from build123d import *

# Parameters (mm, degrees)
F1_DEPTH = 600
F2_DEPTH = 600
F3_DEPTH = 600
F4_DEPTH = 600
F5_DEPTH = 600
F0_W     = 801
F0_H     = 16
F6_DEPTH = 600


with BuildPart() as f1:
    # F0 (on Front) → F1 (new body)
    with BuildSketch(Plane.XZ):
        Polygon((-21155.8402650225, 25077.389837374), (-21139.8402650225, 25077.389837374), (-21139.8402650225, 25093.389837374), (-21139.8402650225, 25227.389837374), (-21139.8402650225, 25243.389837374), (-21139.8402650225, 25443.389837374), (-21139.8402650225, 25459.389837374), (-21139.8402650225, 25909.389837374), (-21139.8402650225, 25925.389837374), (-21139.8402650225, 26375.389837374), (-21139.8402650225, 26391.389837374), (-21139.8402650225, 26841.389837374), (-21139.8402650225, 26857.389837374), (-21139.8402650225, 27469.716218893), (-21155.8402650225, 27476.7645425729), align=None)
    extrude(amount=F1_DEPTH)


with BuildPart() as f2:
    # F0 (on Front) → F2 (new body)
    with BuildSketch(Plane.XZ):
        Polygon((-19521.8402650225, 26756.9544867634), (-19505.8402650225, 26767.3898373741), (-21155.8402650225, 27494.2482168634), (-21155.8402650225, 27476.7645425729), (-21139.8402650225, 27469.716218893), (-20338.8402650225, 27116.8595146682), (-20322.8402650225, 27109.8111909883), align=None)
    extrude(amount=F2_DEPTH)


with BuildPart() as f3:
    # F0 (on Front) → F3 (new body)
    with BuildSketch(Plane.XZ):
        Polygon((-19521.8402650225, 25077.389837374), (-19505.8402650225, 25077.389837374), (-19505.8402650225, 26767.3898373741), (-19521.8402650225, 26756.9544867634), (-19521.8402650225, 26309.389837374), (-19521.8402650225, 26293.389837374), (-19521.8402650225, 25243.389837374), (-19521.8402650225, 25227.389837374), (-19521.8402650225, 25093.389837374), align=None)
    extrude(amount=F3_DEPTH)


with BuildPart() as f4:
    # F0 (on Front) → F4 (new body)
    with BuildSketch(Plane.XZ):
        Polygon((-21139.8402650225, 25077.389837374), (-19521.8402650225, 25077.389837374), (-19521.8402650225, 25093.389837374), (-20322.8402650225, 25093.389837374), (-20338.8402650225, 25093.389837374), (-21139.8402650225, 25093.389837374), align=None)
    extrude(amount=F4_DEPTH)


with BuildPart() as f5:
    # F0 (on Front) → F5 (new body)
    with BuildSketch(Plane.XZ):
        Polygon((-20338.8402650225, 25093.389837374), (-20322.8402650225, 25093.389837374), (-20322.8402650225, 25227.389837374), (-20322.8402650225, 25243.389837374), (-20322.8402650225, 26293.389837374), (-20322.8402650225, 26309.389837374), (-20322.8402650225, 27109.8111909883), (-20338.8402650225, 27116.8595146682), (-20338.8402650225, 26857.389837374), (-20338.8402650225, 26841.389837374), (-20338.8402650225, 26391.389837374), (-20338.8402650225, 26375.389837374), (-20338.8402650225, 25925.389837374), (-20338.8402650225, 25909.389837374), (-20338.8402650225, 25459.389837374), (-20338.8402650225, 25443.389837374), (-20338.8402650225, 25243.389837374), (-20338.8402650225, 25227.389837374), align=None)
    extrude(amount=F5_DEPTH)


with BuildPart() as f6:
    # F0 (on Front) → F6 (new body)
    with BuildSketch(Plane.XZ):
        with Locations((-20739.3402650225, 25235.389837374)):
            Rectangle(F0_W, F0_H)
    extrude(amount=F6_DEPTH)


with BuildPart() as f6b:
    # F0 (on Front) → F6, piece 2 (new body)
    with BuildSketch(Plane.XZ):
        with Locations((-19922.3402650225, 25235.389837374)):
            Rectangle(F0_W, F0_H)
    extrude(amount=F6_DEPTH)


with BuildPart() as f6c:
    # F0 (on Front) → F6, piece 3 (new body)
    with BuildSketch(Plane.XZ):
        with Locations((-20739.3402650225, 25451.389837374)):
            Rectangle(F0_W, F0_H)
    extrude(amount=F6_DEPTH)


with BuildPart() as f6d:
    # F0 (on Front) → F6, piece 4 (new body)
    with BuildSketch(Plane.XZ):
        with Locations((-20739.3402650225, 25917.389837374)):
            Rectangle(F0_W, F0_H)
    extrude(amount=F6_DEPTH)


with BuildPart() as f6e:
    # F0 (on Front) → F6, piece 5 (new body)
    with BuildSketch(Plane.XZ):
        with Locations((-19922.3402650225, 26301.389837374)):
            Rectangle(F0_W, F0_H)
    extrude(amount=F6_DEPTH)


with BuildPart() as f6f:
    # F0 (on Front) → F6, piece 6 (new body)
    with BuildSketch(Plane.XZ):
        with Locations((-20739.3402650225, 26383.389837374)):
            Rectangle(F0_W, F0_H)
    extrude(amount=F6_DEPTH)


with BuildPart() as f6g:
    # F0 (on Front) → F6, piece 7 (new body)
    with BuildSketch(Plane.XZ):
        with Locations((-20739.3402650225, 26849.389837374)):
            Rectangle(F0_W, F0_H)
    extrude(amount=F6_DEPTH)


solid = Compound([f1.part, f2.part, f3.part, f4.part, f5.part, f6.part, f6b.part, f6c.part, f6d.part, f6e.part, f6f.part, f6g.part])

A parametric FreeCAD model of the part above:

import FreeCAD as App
import Part
import Sketcher
Q = App.Units.Quantity

doc = App.newDocument("Part")
body = doc.addObject("PartDesign::Body", "Body")

sketch1 = body.newObject("Sketcher::SketchObject", "Sketch")
sketch1.AttachmentSupport = (doc.getObject("XZ_Plane"), [""])
sketch1.MapMode = "FlatFace"
sketch1.addGeometry([
    Part.LineSegment(App.Vector(-21156, 25077, 0), App.Vector(-21140, 25077, 0)),
    Part.LineSegment(App.Vector(-21140, 25077, 0), App.Vector(-21140, 27470, 0)),
    Part.LineSegment(App.Vector(-21140, 27470, 0), App.Vector(-21156, 27477, 0)),
    Part.LineSegment(App.Vector(-21156, 27477, 0), App.Vector(-21156, 25077, 0)),
], False)
sketch1.addConstraint([
    Sketcher.Constraint("Coincident", 0, 2, 1, 1),
    Sketcher.Constraint("Coincident", 1, 2, 2, 1),
    Sketcher.Constraint("Coincident", 2, 2, 3, 1),
    Sketcher.Constraint("Coincident", 3, 2, 0, 1),
    Sketcher.Constraint("Horizontal", 0),
    Sketcher.Constraint("Vertical", 1),
    Sketcher.Constraint("Vertical", 3),
    Sketcher.Constraint("DistanceX", 0, 1, 0, 2, Q("16 mm")),
    Sketcher.Constraint("DistanceY", 1, 1, 1, 2, Q("2392.326382 mm")),
    Sketcher.Constraint("DistanceY", 3, 2, 3, 1, Q("2399.374705 mm")),
    Sketcher.Constraint("DistanceY", -1, 1, 1, 2, Q("27469.716219 mm")),
    Sketcher.Constraint("DistanceX", 0, 2, -1, 1, Q("21139.840265 mm")),
])
pad1 = body.newObject("PartDesign::Pad", "Pad")
pad1.Profile = sketch1
pad1.Length = 600
body2 = doc.addObject("PartDesign::Body", "Body001")

sketch2 = body2.newObject("Sketcher::SketchObject", "Sketch001")
sketch2.AttachmentSupport = (doc.getObject("XZ_Plane001"), [""])
sketch2.MapMode = "FlatFace"
sketch2.addGeometry([
    Part.LineSegment(App.Vector(-19522, 26757, 0), App.Vector(-19506, 26767, 0)),
    Part.LineSegment(App.Vector(-19506, 26767, 0), App.Vector(-21156, 27494, 0)),
    Part.LineSegment(App.Vector(-21156, 27494, 0), App.Vector(-21156, 27477, 0)),
    Part.LineSegment(App.Vector(-21156, 27477, 0), App.Vector(-19522, 26757, 0)),
], False)
sketch2.addConstraint([
    Sketcher.Constraint("Coincident", 0, 2, 1, 1),
    Sketcher.Constraint("Coincident", 1, 2, 2, 1),
    Sketcher.Constraint("Coincident", 2, 2, 3, 1),
    Sketcher.Constraint("Coincident", 3, 2, 0, 1),
    Sketcher.Constraint("Vertical", 2),
    Sketcher.Constraint("Parallel", 1, 3),
    Sketcher.Constraint("DistanceX", 1, 2, 0, 2, Q("1650 mm")),
    Sketcher.Constraint("DistanceX", 3, 2, 0, 2, Q("16 mm")),
    Sketcher.Constraint("Distance", 1, Q("1803.003911 mm")),
    Sketcher.Constraint("DistanceY", 2, 2, 2, 1, Q("17.483674 mm")),
    Sketcher.Constraint("DistanceX", 0, 2, -1, 1, Q("19505.840265 mm")),
    Sketcher.Constraint("DistanceY", -1, 1, 0, 2, Q("26767.389837 mm")),
])
pad2 = body2.newObject("PartDesign::Pad", "Pad001")
pad2.Profile = sketch2
pad2.Length = 600
body3 = doc.addObject("PartDesign::Body", "Body002")

sketch3 = body3.newObject("Sketcher::SketchObject", "Sketch002")
sketch3.AttachmentSupport = (doc.getObject("XZ_Plane002"), [""])
sketch3.MapMode = "FlatFace"
sketch3.addGeometry([
    Part.LineSegment(App.Vector(-19522, 25077, 0), App.Vector(-19506, 25077, 0)),
    Part.LineSegment(App.Vector(-19506, 25077, 0), App.Vector(-19506, 26767, 0)),
    Part.LineSegment(App.Vector(-19506, 26767, 0), App.Vector(-19522, 26757, 0)),
    Part.LineSegment(App.Vector(-19522, 26757, 0), App.Vector(-19522, 25077, 0)),
], False)
sketch3.addConstraint([
    Sketcher.Constraint("Coincident", 0, 2, 1, 1),
    Sketcher.Constraint("Coincident", 1, 2, 2, 1),
    Sketcher.Constraint("Coincident", 2, 2, 3, 1),
    Sketcher.Constraint("Coincident", 3, 2, 0, 1),
    Sketcher.Constraint("Horizontal", 0),
    Sketcher.Constraint("Vertical", 1),
    Sketcher.Constraint("Vertical", 3),
    Sketcher.Constraint("DistanceX", 0, 1, 0, 2, Q("16 mm")),
    Sketcher.Constraint("DistanceY", 1, 1, 1, 2, Q("1690 mm")),
    Sketcher.Constraint("DistanceY", 3, 2, 3, 1, Q("1679.564649 mm")),
    Sketcher.Constraint("DistanceX", 0, 2, -1, 1, Q("19505.840265 mm")),
    Sketcher.Constraint("DistanceY", -1, 1, 0, 2, Q("25077.389837 mm")),
])
pad3 = body3.newObject("PartDesign::Pad", "Pad002")
pad3.Profile = sketch3
pad3.Length = 600
body4 = doc.addObject("PartDesign::Body", "Body003")

sketch4 = body4.newObject("Sketcher::SketchObject", "Sketch003")
sketch4.AttachmentSupport = (doc.getObject("XZ_Plane003"), [""])
sketch4.MapMode = "FlatFace"
sketch4.addGeometry([
    Part.LineSegment(App.Vector(-21140, 25077, 0), App.Vector(-19522, 25077, 0)),
    Part.LineSegment(App.Vector(-19522, 25077, 0), App.Vector(-19522, 25093, 0)),
    Part.LineSegment(App.Vector(-19522, 25093, 0), App.Vector(-21140, 25093, 0)),
    Part.LineSegment(App.Vector(-21140, 25093, 0), App.Vector(-21140, 25077, 0)),
], False)
sketch4.addConstraint([
    Sketcher.Constraint("Coincident", 0, 2, 1, 1),
    Sketcher.Constraint("Coincident", 1, 2, 2, 1),
    Sketcher.Constraint("Coincident", 2, 2, 3, 1),
    Sketcher.Constraint("Coincident", 3, 2, 0, 1),
    Sketcher.Constraint("Horizontal", 0),
    Sketcher.Constraint("Vertical", 1),
    Sketcher.Constraint("Horizontal", 2),
    Sketcher.Constraint("Vertical", 3),
    Sketcher.Constraint("DistanceX", 0, 1, 0, 2, Q("1618 mm")),
    Sketcher.Constraint("DistanceY", 1, 1, 1, 2, Q("16 mm")),
    Sketcher.Constraint("DistanceX", 0, 2, -1, 1, Q("19521.840265 mm")),
    Sketcher.Constraint("DistanceY", -1, 1, 0, 2, Q("25077.389837 mm")),
])
pad4 = body4.newObject("PartDesign::Pad", "Pad003")
pad4.Profile = sketch4
pad4.Length = 600
body5 = doc.addObject("PartDesign::Body", "Body004")

sketch5 = body5.newObject("Sketcher::SketchObject", "Sketch004")
sketch5.AttachmentSupport = (doc.getObject("XZ_Plane004"), [""])
sketch5.MapMode = "FlatFace"
sketch5.addGeometry([
    Part.LineSegment(App.Vector(-20339, 25093, 0), App.Vector(-20323, 25093, 0)),
    Part.LineSegment(App.Vector(-20323, 25093, 0), App.Vector(-20323, 27110, 0)),
    Part.LineSegment(App.Vector(-20323, 27110, 0), App.Vector(-20339, 27117, 0)),
    Part.LineSegment(App.Vector(-20339, 27117, 0), App.Vector(-20339, 25093, 0)),
], False)
sketch5.addConstraint([
    Sketcher.Constraint("Coincident", 0, 2, 1, 1),
    Sketcher.Constraint("Coincident", 1, 2, 2, 1),
    Sketcher.Constraint("Coincident", 2, 2, 3, 1),
    Sketcher.Constraint("Coincident", 3, 2, 0, 1),
    Sketcher.Constraint("Horizontal", 0),
    Sketcher.Constraint("Vertical", 1),
    Sketcher.Constraint("Vertical", 3),
    Sketcher.Constraint("DistanceX", 0, 1, 0, 2, Q("16 mm")),
    Sketcher.Constraint("DistanceY", 1, 1, 1, 2, Q("2016.421354 mm")),
    Sketcher.Constraint("DistanceY", 3, 2, 3, 1, Q("2023.469677 mm")),
    Sketcher.Constraint("DistanceY", -1, 1, 1, 2, Q("27109.811191 mm")),
    Sketcher.Constraint("DistanceX", 0, 2, -1, 1, Q("20322.840265 mm")),
])
pad5 = body5.newObject("PartDesign::Pad", "Pad004")
pad5.Profile = sketch5
pad5.Length = 600
body6 = doc.addObject("PartDesign::Body", "Body005")

sketch6 = body6.newObject("Sketcher::SketchObject", "Sketch005")
sketch6.AttachmentSupport = (doc.getObject("XZ_Plane005"), [""])
sketch6.MapMode = "FlatFace"
sketch6.addGeometry([
    Part.LineSegment(App.Vector(-21140, 25243, 0), App.Vector(-21140, 25227, 0)),
    Part.LineSegment(App.Vector(-21140, 25227, 0), App.Vector(-20339, 25227, 0)),
    Part.LineSegment(App.Vector(-20339, 25227, 0), App.Vector(-20339, 25243, 0)),
    Part.LineSegment(App.Vector(-20339, 25243, 0), App.Vector(-21140, 25243, 0)),
], False)
sketch6.addConstraint([
    Sketcher.Constraint("Coincident", 0, 2, 1, 1),
    Sketcher.Constraint("Coincident", 1, 2, 2, 1),
    Sketcher.Constraint("Coincident", 2, 2, 3, 1),
    Sketcher.Constraint("Coincident", 3, 2, 0, 1),
    Sketcher.Constraint("Vertical", 0),
    Sketcher.Constraint("Horizontal", 1),
    Sketcher.Constraint("Vertical", 2),
    Sketcher.Constraint("Horizontal", 3),
    Sketcher.Constraint("DistanceX", 1, 1, 1, 2, Q("801 mm")),
    Sketcher.Constraint("DistanceY", 0, 2, 0, 1, Q("16 mm")),
    Sketcher.Constraint("DistanceX", 0, 2, -1, 1, Q("21139.840265 mm")),
    Sketcher.Constraint("DistanceY", -1, 1, 0, 2, Q("25227.389837 mm")),
])
pad6 = body6.newObject("PartDesign::Pad", "Pad005")
pad6.Profile = sketch6
pad6.Length = 600
body7 = doc.addObject("PartDesign::Body", "Body006")

sketch7 = body7.newObject("Sketcher::SketchObject", "Sketch006")
sketch7.AttachmentSupport = (doc.getObject("XZ_Plane006"), [""])
sketch7.MapMode = "FlatFace"
sketch7.addGeometry([
    Part.LineSegment(App.Vector(-20323, 25243, 0), App.Vector(-20323, 25227, 0)),
    Part.LineSegment(App.Vector(-20323, 25227, 0), App.Vector(-19522, 25227, 0)),
    Part.LineSegment(App.Vector(-19522, 25227, 0), App.Vector(-19522, 25243, 0)),
    Part.LineSegment(App.Vector(-19522, 25243, 0), App.Vector(-20323, 25243, 0)),
], False)
sketch7.addConstraint([
    Sketcher.Constraint("Coincident", 0, 2, 1, 1),
    Sketcher.Constraint("Coincident", 1, 2, 2, 1),
    Sketcher.Constraint("Coincident", 2, 2, 3, 1),
    Sketcher.Constraint("Coincident", 3, 2, 0, 1),
    Sketcher.Constraint("Vertical", 0),
    Sketcher.Constraint("Horizontal", 1),
    Sketcher.Constraint("Vertical", 2),
    Sketcher.Constraint("Horizontal", 3),
    Sketcher.Constraint("DistanceX", 1, 1, 1, 2, Q("801 mm")),
    Sketcher.Constraint("DistanceY", 0, 2, 0, 1, Q("16 mm")),
    Sketcher.Constraint("DistanceX", 0, 2, -1, 1, Q("20322.840265 mm")),
    Sketcher.Constraint("DistanceY", -1, 1, 0, 2, Q("25227.389837 mm")),
])
pad7 = body7.newObject("PartDesign::Pad", "Pad006")
pad7.Profile = sketch7
pad7.Length = 600
body8 = doc.addObject("PartDesign::Body", "Body007")

sketch8 = body8.newObject("Sketcher::SketchObject", "Sketch007")
sketch8.AttachmentSupport = (doc.getObject("XZ_Plane007"), [""])
sketch8.MapMode = "FlatFace"
sketch8.addGeometry([
    Part.LineSegment(App.Vector(-21140, 25459, 0), App.Vector(-21140, 25443, 0)),
    Part.LineSegment(App.Vector(-21140, 25443, 0), App.Vector(-20339, 25443, 0)),
    Part.LineSegment(App.Vector(-20339, 25443, 0), App.Vector(-20339, 25459, 0)),
    Part.LineSegment(App.Vector(-20339, 25459, 0), App.Vector(-21140, 25459, 0)),
], False)
sketch8.addConstraint([
    Sketcher.Constraint("Coincident", 0, 2, 1, 1),
    Sketcher.Constraint("Coincident", 1, 2, 2, 1),
    Sketcher.Constraint("Coincident", 2, 2, 3, 1),
    Sketcher.Constraint("Coincident", 3, 2, 0, 1),
    Sketcher.Constraint("Vertical", 0),
    Sketcher.Constraint("Horizontal", 1),
    Sketcher.Constraint("Vertical", 2),
    Sketcher.Constraint("Horizontal", 3),
    Sketcher.Constraint("DistanceX", 1, 1, 1, 2, Q("801 mm")),
    Sketcher.Constraint("DistanceY", 0, 2, 0, 1, Q("16 mm")),
    Sketcher.Constraint("DistanceX", 0, 2, -1, 1, Q("21139.840265 mm")),
    Sketcher.Constraint("DistanceY", -1, 1, 0, 2, Q("25443.389837 mm")),
])
pad8 = body8.newObject("PartDesign::Pad", "Pad007")
pad8.Profile = sketch8
pad8.Length = 600
body9 = doc.addObject("PartDesign::Body", "Body008")

sketch9 = body9.newObject("Sketcher::SketchObject", "Sketch008")
sketch9.AttachmentSupport = (doc.getObject("XZ_Plane008"), [""])
sketch9.MapMode = "FlatFace"
sketch9.addGeometry([
    Part.LineSegment(App.Vector(-21140, 25925, 0), App.Vector(-21140, 25909, 0)),
    Part.LineSegment(App.Vector(-21140, 25909, 0), App.Vector(-20339, 25909, 0)),
    Part.LineSegment(App.Vector(-20339, 25909, 0), App.Vector(-20339, 25925, 0)),
    Part.LineSegment(App.Vector(-20339, 25925, 0), App.Vector(-21140, 25925, 0)),
], False)
sketch9.addConstraint([
    Sketcher.Constraint("Coincident", 0, 2, 1, 1),
    Sketcher.Constraint("Coincident", 1, 2, 2, 1),
    Sketcher.Constraint("Coincident", 2, 2, 3, 1),
    Sketcher.Constraint("Coincident", 3, 2, 0, 1),
    Sketcher.Constraint("Vertical", 0),
    Sketcher.Constraint("Horizontal", 1),
    Sketcher.Constraint("Vertical", 2),
    Sketcher.Constraint("Horizontal", 3),
    Sketcher.Constraint("DistanceX", 1, 1, 1, 2, Q("801 mm")),
    Sketcher.Constraint("DistanceY", 0, 2, 0, 1, Q("16 mm")),
    Sketcher.Constraint("DistanceX", 0, 2, -1, 1, Q("21139.840265 mm")),
    Sketcher.Constraint("DistanceY", -1, 1, 0, 2, Q("25909.389837 mm")),
])
pad9 = body9.newObject("PartDesign::Pad", "Pad008")
pad9.Profile = sketch9
pad9.Length = 600
body10 = doc.addObject("PartDesign::Body", "Body009")

sketch10 = body10.newObject("Sketcher::SketchObject", "Sketch009")
sketch10.AttachmentSupport = (doc.getObject("XZ_Plane009"), [""])
sketch10.MapMode = "FlatFace"
sketch10.addGeometry([
    Part.LineSegment(App.Vector(-20323, 26309, 0), App.Vector(-20323, 26293, 0)),
    Part.LineSegment(App.Vector(-20323, 26293, 0), App.Vector(-19522, 26293, 0)),
    Part.LineSegment(App.Vector(-19522, 26293, 0), App.Vector(-19522, 26309, 0)),
    Part.LineSegment(App.Vector(-19522, 26309, 0), App.Vector(-20323, 26309, 0)),
], False)
sketch10.addConstraint([
    Sketcher.Constraint("Coincident", 0, 2, 1, 1),
    Sketcher.Constraint("Coincident", 1, 2, 2, 1),
    Sketcher.Constraint("Coincident", 2, 2, 3, 1),
    Sketcher.Constraint("Coincident", 3, 2, 0, 1),
    Sketcher.Constraint("Vertical", 0),
    Sketcher.Constraint("Horizontal", 1),
    Sketcher.Constraint("Vertical", 2),
    Sketcher.Constraint("Horizontal", 3),
    Sketcher.Constraint("DistanceX", 1, 1, 1, 2, Q("801 mm")),
    Sketcher.Constraint("DistanceY", 0, 2, 0, 1, Q("16 mm")),
    Sketcher.Constraint("DistanceX", 0, 2, -1, 1, Q("20322.840265 mm")),
    Sketcher.Constraint("DistanceY", -1, 1, 0, 2, Q("26293.389837 mm")),
])
pad10 = body10.newObject("PartDesign::Pad", "Pad009")
pad10.Profile = sketch10
pad10.Length = 600
body11 = doc.addObject("PartDesign::Body", "Body010")

sketch11 = body11.newObject("Sketcher::SketchObject", "Sketch010")
sketch11.AttachmentSupport = (doc.getObject("XZ_Plane010"), [""])
sketch11.MapMode = "FlatFace"
sketch11.addGeometry([
    Part.LineSegment(App.Vector(-21140, 26391, 0), App.Vector(-21140, 26375, 0)),
    Part.LineSegment(App.Vector(-21140, 26375, 0), App.Vector(-20339, 26375, 0)),
    Part.LineSegment(App.Vector(-20339, 26375, 0), App.Vector(-20339, 26391, 0)),
    Part.LineSegment(App.Vector(-20339, 26391, 0), App.Vector(-21140, 26391, 0)),
], False)
sketch11.addConstraint([
    Sketcher.Constraint("Coincident", 0, 2, 1, 1),
    Sketcher.Constraint("Coincident", 1, 2, 2, 1),
    Sketcher.Constraint("Coincident", 2, 2, 3, 1),
    Sketcher.Constraint("Coincident", 3, 2, 0, 1),
    Sketcher.Constraint("Vertical", 0),
    Sketcher.Constraint("Horizontal", 1),
    Sketcher.Constraint("Vertical", 2),
    Sketcher.Constraint("Horizontal", 3),
    Sketcher.Constraint("DistanceX", 1, 1, 1, 2, Q("801 mm")),
    Sketcher.Constraint("DistanceY", 0, 2, 0, 1, Q("16 mm")),
    Sketcher.Constraint("DistanceX", 0, 2, -1, 1, Q("21139.840265 mm")),
    Sketcher.Constraint("DistanceY", -1, 1, 0, 2, Q("26375.389837 mm")),
])
pad11 = body11.newObject("PartDesign::Pad", "Pad010")
pad11.Profile = sketch11
pad11.Length = 600
body12 = doc.addObject("PartDesign::Body", "Body011")

sketch12 = body12.newObject("Sketcher::SketchObject", "Sketch011")
sketch12.AttachmentSupport = (doc.getObject("XZ_Plane011"), [""])
sketch12.MapMode = "FlatFace"
sketch12.addGeometry([
    Part.LineSegment(App.Vector(-21140, 26857, 0), App.Vector(-21140, 26841, 0)),
    Part.LineSegment(App.Vector(-21140, 26841, 0), App.Vector(-20339, 26841, 0)),
    Part.LineSegment(App.Vector(-20339, 26841, 0), App.Vector(-20339, 26857, 0)),
    Part.LineSegment(App.Vector(-20339, 26857, 0), App.Vector(-21140, 26857, 0)),
], False)
sketch12.addConstraint([
    Sketcher.Constraint("Coincident", 0, 2, 1, 1),
    Sketcher.Constraint("Coincident", 1, 2, 2, 1),
    Sketcher.Constraint("Coincident", 2, 2, 3, 1),
    Sketcher.Constraint("Coincident", 3, 2, 0, 1),
    Sketcher.Constraint("Vertical", 0),
    Sketcher.Constraint("Horizontal", 1),
    Sketcher.Constraint("Vertical", 2),
    Sketcher.Constraint("Horizontal", 3),
    Sketcher.Constraint("DistanceX", 1, 1, 1, 2, Q("801 mm")),
    Sketcher.Constraint("DistanceY", 0, 2, 0, 1, Q("16 mm")),
    Sketcher.Constraint("DistanceX", 0, 2, -1, 1, Q("21139.840265 mm")),
    Sketcher.Constraint("DistanceY", -1, 1, 0, 2, Q("26841.389837 mm")),
])
pad12 = body12.newObject("PartDesign::Pad", "Pad011")
pad12.Profile = sketch12
pad12.Length = 600

doc.recompute()
